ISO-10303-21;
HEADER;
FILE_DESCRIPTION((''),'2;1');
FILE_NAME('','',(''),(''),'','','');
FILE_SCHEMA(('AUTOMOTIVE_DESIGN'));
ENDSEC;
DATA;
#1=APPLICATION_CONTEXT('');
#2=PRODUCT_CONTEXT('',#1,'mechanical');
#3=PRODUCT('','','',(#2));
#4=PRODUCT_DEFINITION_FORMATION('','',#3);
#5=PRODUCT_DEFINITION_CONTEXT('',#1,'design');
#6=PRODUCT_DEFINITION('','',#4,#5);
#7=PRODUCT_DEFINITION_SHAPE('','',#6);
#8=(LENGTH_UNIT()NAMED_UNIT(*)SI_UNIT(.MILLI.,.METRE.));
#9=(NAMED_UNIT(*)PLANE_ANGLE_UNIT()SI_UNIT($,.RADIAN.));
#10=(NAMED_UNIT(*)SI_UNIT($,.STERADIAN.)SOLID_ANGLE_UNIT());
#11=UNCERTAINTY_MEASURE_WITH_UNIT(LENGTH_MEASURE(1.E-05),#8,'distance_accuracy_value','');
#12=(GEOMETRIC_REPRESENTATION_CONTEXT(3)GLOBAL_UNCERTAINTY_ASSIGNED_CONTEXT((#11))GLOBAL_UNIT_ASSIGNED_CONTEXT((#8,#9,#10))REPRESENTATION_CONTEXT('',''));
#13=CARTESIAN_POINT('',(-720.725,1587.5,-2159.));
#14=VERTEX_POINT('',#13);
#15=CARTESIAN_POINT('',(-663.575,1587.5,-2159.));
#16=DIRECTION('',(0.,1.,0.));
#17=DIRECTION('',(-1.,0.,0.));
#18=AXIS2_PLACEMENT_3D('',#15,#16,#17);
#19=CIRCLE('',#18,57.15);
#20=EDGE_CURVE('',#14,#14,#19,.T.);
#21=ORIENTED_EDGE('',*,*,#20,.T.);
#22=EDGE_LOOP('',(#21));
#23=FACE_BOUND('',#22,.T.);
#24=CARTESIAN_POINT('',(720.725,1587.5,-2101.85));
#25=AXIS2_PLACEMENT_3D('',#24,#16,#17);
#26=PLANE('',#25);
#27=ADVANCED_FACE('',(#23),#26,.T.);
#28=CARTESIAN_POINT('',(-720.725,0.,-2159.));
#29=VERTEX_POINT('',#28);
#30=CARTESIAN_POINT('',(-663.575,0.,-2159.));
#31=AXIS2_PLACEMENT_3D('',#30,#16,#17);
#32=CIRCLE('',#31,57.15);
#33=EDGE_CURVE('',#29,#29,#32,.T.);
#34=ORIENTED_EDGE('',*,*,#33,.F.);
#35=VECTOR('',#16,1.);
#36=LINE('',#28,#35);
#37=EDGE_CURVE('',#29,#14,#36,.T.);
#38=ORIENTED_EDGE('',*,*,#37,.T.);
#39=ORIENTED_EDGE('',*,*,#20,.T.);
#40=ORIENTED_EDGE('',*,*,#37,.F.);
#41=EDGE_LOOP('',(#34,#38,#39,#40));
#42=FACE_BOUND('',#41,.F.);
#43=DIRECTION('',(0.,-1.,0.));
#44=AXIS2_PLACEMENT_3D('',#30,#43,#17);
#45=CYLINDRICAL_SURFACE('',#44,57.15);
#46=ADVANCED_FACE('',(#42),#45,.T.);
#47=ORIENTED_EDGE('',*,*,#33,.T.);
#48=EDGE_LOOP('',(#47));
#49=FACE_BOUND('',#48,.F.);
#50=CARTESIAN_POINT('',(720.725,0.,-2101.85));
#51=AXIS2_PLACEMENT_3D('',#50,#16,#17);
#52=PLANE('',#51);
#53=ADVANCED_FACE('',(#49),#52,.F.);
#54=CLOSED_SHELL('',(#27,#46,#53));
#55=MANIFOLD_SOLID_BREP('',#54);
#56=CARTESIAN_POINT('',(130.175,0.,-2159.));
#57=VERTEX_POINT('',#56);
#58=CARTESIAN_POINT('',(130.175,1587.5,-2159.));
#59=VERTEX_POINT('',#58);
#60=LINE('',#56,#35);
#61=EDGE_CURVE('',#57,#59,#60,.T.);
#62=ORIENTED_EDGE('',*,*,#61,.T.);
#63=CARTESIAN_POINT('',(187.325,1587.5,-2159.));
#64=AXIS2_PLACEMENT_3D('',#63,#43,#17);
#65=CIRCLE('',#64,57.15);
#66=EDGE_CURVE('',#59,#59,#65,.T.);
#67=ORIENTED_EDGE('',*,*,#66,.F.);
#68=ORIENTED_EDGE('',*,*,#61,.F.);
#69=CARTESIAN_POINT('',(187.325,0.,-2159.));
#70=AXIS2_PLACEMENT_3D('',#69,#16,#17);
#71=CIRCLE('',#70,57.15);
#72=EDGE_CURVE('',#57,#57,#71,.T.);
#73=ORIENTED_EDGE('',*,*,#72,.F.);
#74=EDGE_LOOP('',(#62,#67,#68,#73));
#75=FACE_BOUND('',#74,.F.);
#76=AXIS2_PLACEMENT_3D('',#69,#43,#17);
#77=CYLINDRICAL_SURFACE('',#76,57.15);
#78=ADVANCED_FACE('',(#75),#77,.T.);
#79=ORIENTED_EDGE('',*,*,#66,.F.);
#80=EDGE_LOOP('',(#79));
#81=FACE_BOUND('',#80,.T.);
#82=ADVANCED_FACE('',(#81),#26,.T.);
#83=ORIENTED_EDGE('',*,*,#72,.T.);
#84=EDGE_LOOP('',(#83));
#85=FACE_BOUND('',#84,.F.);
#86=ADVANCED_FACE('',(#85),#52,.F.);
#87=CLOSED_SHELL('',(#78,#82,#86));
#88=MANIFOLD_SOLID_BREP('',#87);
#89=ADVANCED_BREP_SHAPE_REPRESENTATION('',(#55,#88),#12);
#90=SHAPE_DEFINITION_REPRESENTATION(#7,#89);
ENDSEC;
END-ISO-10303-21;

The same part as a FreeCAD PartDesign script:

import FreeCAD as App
import Part
import Sketcher
Q = App.Units.Quantity

doc = App.newDocument("Part")
body = doc.addObject("PartDesign::Body", "Body")
body.AllowCompound = True

sketch1 = body.newObject("Sketcher::SketchObject", "Sketch")
sketch1.AttachmentSupport = (doc.getObject("XZ_Plane"), [""])
sketch1.MapMode = "FlatFace"
sketch1.addGeometry(Part.Circle(App.Vector(187, -2159, 0), App.Vector(0, 0, 1), 57), False)
sketch1.addGeometry(Part.Circle(App.Vector(-664, -2159, 0), App.Vector(0, 0, 1), 57), False)
sketch1.addConstraint(Sketcher.Constraint("Equal", 0, 1))
sketch1.addConstraint(Sketcher.Constraint("Horizontal", 0, 3, 1, 3))
sketch1.addConstraint(Sketcher.Constraint("Diameter", 0, Q("4.5 in")))
sketch1.addConstraint(Sketcher.Constraint("DistanceX", 1, 3, 0, 3, Q("33.5 in")))
sketch1.addConstraint(Sketcher.Constraint("DistanceY", 0, 3, -1, 1, Q("85 in")))
sketch1.addConstraint(Sketcher.Constraint("DistanceX", -1, 1, 0, 3, Q("7.375 in")))
pad1 = body.newObject("PartDesign::Pad", "Pad")
pad1.Profile = sketch1
pad1.Length = Q("62.5 in")
pad1.Reversed = True

doc.recompute()
